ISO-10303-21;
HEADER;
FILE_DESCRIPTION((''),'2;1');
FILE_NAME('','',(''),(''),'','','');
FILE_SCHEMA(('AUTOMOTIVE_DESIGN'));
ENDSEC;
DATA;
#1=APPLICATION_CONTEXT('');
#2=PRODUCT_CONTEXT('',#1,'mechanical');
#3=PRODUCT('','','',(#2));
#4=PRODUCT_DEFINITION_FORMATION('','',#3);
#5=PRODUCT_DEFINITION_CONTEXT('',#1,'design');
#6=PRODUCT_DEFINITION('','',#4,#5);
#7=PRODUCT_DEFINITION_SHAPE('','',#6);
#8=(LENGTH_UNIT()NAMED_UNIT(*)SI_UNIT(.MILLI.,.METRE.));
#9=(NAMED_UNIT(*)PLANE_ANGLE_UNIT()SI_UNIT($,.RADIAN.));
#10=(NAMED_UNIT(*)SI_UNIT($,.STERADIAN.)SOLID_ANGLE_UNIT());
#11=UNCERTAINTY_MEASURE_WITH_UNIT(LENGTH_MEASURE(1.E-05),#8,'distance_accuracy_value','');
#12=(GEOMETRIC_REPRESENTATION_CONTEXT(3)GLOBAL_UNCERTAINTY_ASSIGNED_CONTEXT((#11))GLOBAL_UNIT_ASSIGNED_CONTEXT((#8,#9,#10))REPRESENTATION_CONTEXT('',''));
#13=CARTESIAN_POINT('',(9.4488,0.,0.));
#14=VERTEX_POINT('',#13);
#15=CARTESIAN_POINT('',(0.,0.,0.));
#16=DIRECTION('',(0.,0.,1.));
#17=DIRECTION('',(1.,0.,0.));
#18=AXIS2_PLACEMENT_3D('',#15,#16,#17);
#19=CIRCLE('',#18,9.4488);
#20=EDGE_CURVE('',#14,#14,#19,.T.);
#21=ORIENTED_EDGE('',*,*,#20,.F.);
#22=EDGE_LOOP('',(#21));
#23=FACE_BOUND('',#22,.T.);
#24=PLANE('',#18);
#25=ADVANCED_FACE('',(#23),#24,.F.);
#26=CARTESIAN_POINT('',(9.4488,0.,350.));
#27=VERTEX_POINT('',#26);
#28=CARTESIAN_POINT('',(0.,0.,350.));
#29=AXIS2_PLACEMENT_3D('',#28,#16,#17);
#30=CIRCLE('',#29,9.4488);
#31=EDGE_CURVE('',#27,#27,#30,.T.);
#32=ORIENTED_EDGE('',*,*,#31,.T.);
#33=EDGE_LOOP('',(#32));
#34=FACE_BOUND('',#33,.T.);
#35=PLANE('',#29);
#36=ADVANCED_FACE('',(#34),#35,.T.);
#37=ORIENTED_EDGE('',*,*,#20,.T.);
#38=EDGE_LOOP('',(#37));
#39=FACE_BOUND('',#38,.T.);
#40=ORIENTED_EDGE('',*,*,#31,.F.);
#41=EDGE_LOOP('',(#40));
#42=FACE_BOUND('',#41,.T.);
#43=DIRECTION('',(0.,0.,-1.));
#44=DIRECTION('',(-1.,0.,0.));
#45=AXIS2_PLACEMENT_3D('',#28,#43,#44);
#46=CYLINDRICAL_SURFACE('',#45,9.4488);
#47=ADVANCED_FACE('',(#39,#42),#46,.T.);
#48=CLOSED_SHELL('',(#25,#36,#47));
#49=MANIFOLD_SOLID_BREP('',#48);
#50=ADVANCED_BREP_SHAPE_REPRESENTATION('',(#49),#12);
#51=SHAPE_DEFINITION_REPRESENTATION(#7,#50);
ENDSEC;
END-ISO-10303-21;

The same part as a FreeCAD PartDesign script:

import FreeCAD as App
import Part
import Sketcher
from FreeCAD import Vector

doc = App.newDocument("Part")
params = doc.addObject("Spreadsheet::Sheet", "Params")
for row, (alias, value) in enumerate([
    ("pad1_length", "350 mm"),
], start=1):
    params.set(f"A{row}", alias)
    params.set(f"B{row}", "=" + value)
    params.setAlias(f"B{row}", alias)

body = doc.addObject("PartDesign::Body", "Body")

# Sketch on XY plane
sketch1 = body.newObject("Sketcher::SketchObject", "Sketch")
sketch1.AttachmentSupport = (doc.getObject("XY_Plane"), [""])
sketch1.MapMode = "FlatFace"
sketch1.addGeometry(Part.Circle(Vector(0, 0, 0), Vector(0, 0, 1), 9.4488), False)
sketch1.addConstraint([
    Sketcher.Constraint("Coincident", 0, 3, -1, 1),
    Sketcher.Constraint("Diameter", 0, 18.8976),
])
pad1 = body.newObject("PartDesign::Pad", "Pad")
pad1.Profile = sketch1
pad1.setExpression("Length", "Params.pad1_length")

doc.recompute()
